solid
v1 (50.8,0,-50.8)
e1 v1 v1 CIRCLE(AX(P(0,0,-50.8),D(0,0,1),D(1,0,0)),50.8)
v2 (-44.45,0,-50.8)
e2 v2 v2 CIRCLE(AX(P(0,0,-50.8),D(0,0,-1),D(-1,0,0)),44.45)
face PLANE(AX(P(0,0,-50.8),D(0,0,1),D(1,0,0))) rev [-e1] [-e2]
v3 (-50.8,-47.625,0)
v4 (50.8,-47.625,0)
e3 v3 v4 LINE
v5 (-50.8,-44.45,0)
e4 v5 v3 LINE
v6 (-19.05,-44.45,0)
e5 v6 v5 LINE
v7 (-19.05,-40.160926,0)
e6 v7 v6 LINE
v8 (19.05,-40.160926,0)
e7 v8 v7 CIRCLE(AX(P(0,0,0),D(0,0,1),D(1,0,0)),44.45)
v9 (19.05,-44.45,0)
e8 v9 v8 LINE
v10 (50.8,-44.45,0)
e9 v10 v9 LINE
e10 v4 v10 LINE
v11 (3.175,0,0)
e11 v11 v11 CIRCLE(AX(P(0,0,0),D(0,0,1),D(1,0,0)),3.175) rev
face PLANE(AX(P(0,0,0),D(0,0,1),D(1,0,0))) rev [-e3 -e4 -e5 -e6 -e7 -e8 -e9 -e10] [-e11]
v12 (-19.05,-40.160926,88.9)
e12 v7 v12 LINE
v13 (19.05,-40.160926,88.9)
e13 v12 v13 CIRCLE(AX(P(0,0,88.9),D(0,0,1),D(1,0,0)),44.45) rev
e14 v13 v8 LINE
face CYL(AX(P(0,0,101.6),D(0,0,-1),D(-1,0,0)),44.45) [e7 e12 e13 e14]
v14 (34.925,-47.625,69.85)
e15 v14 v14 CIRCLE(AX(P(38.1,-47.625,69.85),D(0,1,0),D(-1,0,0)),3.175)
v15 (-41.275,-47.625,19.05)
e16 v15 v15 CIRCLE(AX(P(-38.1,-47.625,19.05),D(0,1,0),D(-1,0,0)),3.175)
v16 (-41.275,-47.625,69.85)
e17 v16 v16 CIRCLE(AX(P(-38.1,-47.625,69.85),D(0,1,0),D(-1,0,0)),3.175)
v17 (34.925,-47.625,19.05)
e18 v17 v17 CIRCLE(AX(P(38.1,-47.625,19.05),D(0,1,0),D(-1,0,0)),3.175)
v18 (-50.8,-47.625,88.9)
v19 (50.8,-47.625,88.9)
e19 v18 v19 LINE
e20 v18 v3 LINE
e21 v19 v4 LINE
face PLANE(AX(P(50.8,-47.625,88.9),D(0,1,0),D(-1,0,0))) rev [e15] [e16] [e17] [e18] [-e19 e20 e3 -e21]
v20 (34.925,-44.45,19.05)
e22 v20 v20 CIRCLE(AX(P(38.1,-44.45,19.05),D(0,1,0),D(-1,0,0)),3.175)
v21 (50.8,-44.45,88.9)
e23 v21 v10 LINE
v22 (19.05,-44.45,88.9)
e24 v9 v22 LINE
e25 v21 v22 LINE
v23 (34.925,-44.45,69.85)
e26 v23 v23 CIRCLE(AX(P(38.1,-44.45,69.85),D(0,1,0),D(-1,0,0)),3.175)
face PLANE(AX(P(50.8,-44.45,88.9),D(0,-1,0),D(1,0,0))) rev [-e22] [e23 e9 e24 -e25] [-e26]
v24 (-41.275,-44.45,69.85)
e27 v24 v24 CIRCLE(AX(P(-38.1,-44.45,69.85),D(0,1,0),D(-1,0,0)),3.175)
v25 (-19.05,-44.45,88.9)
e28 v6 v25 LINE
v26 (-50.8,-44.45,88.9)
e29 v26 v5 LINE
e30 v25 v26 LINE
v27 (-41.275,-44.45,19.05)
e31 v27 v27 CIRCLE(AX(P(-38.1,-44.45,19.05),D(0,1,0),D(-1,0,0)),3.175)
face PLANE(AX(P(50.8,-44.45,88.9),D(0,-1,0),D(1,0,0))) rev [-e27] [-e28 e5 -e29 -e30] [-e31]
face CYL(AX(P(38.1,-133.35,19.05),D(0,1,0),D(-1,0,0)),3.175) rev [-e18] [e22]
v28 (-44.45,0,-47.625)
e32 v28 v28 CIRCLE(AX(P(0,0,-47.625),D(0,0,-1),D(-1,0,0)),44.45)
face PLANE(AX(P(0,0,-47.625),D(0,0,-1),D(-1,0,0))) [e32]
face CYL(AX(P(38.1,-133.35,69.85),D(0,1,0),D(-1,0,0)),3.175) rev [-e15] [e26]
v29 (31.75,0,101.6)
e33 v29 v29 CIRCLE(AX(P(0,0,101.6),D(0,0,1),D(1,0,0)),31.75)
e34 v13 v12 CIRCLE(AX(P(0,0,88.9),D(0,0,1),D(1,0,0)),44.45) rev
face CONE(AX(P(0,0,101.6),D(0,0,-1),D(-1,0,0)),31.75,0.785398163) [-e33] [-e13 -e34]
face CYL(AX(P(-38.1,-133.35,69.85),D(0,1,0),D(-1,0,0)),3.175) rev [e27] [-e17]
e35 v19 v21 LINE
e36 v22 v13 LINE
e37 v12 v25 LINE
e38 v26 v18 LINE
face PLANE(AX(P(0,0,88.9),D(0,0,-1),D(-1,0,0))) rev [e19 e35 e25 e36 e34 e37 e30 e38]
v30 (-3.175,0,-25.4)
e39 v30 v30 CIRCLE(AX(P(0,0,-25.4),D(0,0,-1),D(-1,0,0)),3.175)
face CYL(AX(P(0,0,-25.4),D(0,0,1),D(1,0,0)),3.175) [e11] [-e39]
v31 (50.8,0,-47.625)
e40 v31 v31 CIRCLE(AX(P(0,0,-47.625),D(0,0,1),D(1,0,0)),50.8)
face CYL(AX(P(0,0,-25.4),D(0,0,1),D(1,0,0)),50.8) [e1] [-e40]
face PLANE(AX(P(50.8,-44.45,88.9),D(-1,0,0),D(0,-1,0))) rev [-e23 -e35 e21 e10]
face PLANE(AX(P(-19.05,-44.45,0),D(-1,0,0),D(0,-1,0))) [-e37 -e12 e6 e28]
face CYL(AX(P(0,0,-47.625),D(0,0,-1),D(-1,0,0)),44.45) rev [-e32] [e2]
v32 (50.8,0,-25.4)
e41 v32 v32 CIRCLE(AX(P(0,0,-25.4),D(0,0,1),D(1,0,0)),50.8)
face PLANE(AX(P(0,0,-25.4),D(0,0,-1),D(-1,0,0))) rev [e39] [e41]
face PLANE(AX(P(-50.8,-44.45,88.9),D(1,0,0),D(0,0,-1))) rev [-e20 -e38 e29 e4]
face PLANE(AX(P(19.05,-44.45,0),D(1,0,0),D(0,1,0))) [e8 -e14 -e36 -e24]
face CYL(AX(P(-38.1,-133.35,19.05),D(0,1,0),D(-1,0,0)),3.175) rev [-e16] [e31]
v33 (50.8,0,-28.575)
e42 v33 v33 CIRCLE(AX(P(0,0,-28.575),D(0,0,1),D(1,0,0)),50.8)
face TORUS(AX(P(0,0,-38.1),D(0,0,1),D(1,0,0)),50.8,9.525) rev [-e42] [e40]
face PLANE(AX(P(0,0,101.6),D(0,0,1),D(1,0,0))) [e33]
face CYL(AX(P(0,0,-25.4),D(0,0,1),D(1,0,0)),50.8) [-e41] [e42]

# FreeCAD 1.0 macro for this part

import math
import FreeCAD as App
import Part
import Sketcher
Q = App.Units.Quantity


def edges_at(feature, points):
    """Names of the edges that pass closest to the given points."""
    edges = feature.Shape.Edges
    near = lambda p: min(range(len(edges)), key=lambda i: edges[i].distToShape(Part.Vertex(*p))[0])
    return sorted({f"Edge{near(p) + 1}" for p in points})

doc = App.newDocument("Part")
body = doc.addObject("PartDesign::Body", "Body")

sketch1 = doc.addObject("Sketcher::SketchObject", "Sketch")
body.addObject(sketch1)
sketch1.AttachmentSupport = (doc.XY_Plane, [""])
sketch1.MapMode = "FlatFace"
sketch1.addGeometry(Part.Circle(App.Vector(0, 0, 0), App.Vector(0, 0, 1), 44.45), False)
sketch1.addConstraint(Sketcher.Constraint("Coincident", 0, 3, -1, 1))
sketch1.addConstraint(Sketcher.Constraint("Diameter", 0, Q("3.5 in")))
pad1 = doc.addObject("PartDesign::Pad", "Pad")
body.addObject(pad1)
pad1.Profile = sketch1
pad1.Length = Q("4 in")
doc.recompute()

chamfer = doc.addObject("PartDesign::Chamfer", "Chamfer")
body.addObject(chamfer)
chamfer.Base = (pad1, edges_at(pad1, [(-44.45, 0, 101.6)]))
chamfer.Size = Q("0.5 in")

sketch2 = doc.addObject("Sketcher::SketchObject", "Sketch001")
body.addObject(sketch2)
sketch2.AttachmentSupport = (doc.XY_Plane, [""])
sketch2.MapMode = "FlatFace"
sketch2.addGeometry(Part.Circle(App.Vector(0, 0, 0), App.Vector(0, 0, 1), 3.175), False)
sketch2.addConstraint(Sketcher.Constraint("Coincident", 0, 3, -1, 1))
sketch2.addConstraint(Sketcher.Constraint("Diameter", 0, Q("0.25 in")))
pad2 = doc.addObject("PartDesign::Pad", "Pad001")
body.addObject(pad2)
pad2.Profile = sketch2
pad2.Length = Q("1 in")
pad2.Reversed = True

sketch3 = doc.addObject("Sketcher::SketchObject", "Sketch002")
body.addObject(sketch3)
sketch3.AttachmentSupport = (doc.YZ_Plane, [""])
sketch3.MapMode = "FlatFace"
sketch3.addGeometry(Part.LineSegment(App.Vector(0, -25.4, 0), App.Vector(0, -50.8, 0)), False)
sketch3.addGeometry(Part.LineSegment(App.Vector(0, -50.8, 0), App.Vector(50.8, -50.8, 0)), False)
sketch3.addGeometry(Part.LineSegment(App.Vector(50.8, -50.8, 0), App.Vector(50.8, -47.625, 0)), False)
sketch3.addGeometry(Part.ArcOfCircle(Part.Circle(App.Vector(50.8, -38.1, 0), App.Vector(0, 0, 1), 9.525), math.radians(90), math.radians(270)), False)
sketch3.addGeometry(Part.LineSegment(App.Vector(50.8, -28.575, 0), App.Vector(50.8, -25.4, 0)), False)
sketch3.addGeometry(Part.LineSegment(App.Vector(50.8, -25.4, 0), App.Vector(0, -25.4, 0)), False)
sketch3.addConstraint(Sketcher.Constraint("Coincident", 0, 2, 1, 1))
sketch3.addConstraint(Sketcher.Constraint("Coincident", 1, 2, 2, 1))
sketch3.addConstraint(Sketcher.Constraint("Coincident", 2, 2, 3, 2))
sketch3.addConstraint(Sketcher.Constraint("Coincident", 3, 1, 4, 1))
sketch3.addConstraint(Sketcher.Constraint("Coincident", 4, 2, 5, 1))
sketch3.addConstraint(Sketcher.Constraint("Coincident", 5, 2, 0, 1))
sketch3.addConstraint(Sketcher.Constraint("Vertical", 0))
sketch3.addConstraint(Sketcher.Constraint("Horizontal", 1))
sketch3.addConstraint(Sketcher.Constraint("Vertical", 2))
sketch3.addConstraint(Sketcher.Constraint("Vertical", 4))
sketch3.addConstraint(Sketcher.Constraint("Horizontal", 5))
sketch3.addConstraint(Sketcher.Constraint("PointOnObject", 0, 2, -2))
sketch3.addConstraint(Sketcher.Constraint("Vertical", 3, 3, 1, 2))
sketch3.addConstraint(Sketcher.Constraint("Vertical", 2, 2, 3, 1))
sketch3.addConstraint(Sketcher.Constraint("Equal", 2, 4))
sketch3.addConstraint(Sketcher.Constraint("DistanceX", 1, 1, 1, 2, Q("2 in")))
sketch3.addConstraint(Sketcher.Constraint("DistanceY", 0, 2, 0, 1, Q("1 in")))
sketch3.addConstraint(Sketcher.Constraint("DistanceY", 0, 2, -1, 1, Q("2 in")))
sketch3.addConstraint(Sketcher.Constraint("Radius", 3, Q("0.375 in")))
revolution = doc.addObject("PartDesign::Revolution", "Revolution")
body.addObject(revolution)
revolution.Profile = sketch3
revolution.ReferenceAxis = (sketch3, ["V_Axis"])
revolution.Angle = 360

sketch4 = doc.addObject("Sketcher::SketchObject", "Sketch003")
body.addObject(sketch4)
sketch4.AttachmentSupport = (doc.XY_Plane, [""])
sketch4.MapMode = "FlatFace"
sketch4.AttachmentOffset = App.Placement(App.Vector(0, 0, -2 * 25.4), App.Rotation())
sketch4.addGeometry(Part.Circle(App.Vector(0, 0, 0), App.Vector(0, 0, 1), 44.45), False)
sketch4.addConstraint(Sketcher.Constraint("Coincident", 0, 3, -1, 1))
sketch4.addConstraint(Sketcher.Constraint("Diameter", 0, Q("3.5 in")))
pocket1 = doc.addObject("PartDesign::Pocket", "Pocket")
body.addObject(pocket1)
pocket1.Profile = sketch4
pocket1.Length = Q("0.125 in")
pocket1.Reversed = True
body2 = doc.addObject("PartDesign::Body", "Body001")

sketch5 = doc.addObject("Sketcher::SketchObject", "Sketch004")
body2.addObject(sketch5)
sketch5.AttachmentSupport = (doc.getObject("XY_Plane001"), [""])
sketch5.MapMode = "FlatFace"
sketch5.addGeometry(Part.LineSegment(App.Vector(-50.8, -44.45, 0), App.Vector(-50.8, -47.625, 0)), False)
sketch5.addGeometry(Part.LineSegment(App.Vector(-50.8, -47.625, 0), App.Vector(50.8, -47.625, 0)), False)
sketch5.addGeometry(Part.LineSegment(App.Vector(50.8, -47.625, 0), App.Vector(50.8, -44.45, 0)), False)
sketch5.addGeometry(Part.LineSegment(App.Vector(50.8, -44.45, 0), App.Vector(-50.8, -44.45, 0)), False)
sketch5.addConstraint(Sketcher.Constraint("Coincident", 0, 2, 1, 1))
sketch5.addConstraint(Sketcher.Constraint("Coincident", 1, 2, 2, 1))
sketch5.addConstraint(Sketcher.Constraint("Coincident", 2, 2, 3, 1))
sketch5.addConstraint(Sketcher.Constraint("Coincident", 3, 2, 0, 1))
sketch5.addConstraint(Sketcher.Constraint("Vertical", 0))
sketch5.addConstraint(Sketcher.Constraint("Horizontal", 1))
sketch5.addConstraint(Sketcher.Constraint("Vertical", 2))
sketch5.addConstraint(Sketcher.Constraint("Horizontal", 3))
sketch5.addConstraint(Sketcher.Constraint("DistanceX", 1, 1, 1, 2, Q("4 in")))
sketch5.addConstraint(Sketcher.Constraint("DistanceX", 0, 2, -1, 1, Q("2 in")))
sketch5.addConstraint(Sketcher.Constraint("DistanceY", 0, 2, 0, 1, Q("0.125 in")))
sketch5.addConstraint(Sketcher.Constraint("DistanceY", 2, 2, -1, 1, Q("1.75 in")))
pad3 = doc.addObject("PartDesign::Pad", "Pad002")
body2.addObject(pad3)
pad3.Profile = sketch5
pad3.Length = Q("3.5 in")
body.AllowCompound = True
doc.recompute()

boolean = doc.addObject("PartDesign::Boolean", "Boolean")
body.addObject(boolean)
boolean.Type = "Fuse"
boolean.addObjects([body2])

sketch6 = doc.addObject("Sketcher::SketchObject", "Sketch005")
body.addObject(sketch6)
sketch6.AttachmentSupport = (doc.XY_Plane, [""])
sketch6.MapMode = "FlatFace"
sketch6.AttachmentOffset = App.Placement(App.Vector(0, 0, 3.5 * 25.4), App.Rotation())
sketch6.addGeometry(Part.LineSegment(App.Vector(-19.05, -37.439907, 0), App.Vector(-19.05, -44.45, 0)), False)
sketch6.addGeometry(Part.LineSegment(App.Vector(-19.05, -44.45, 0), App.Vector(19.05, -44.45, 0)), False)
sketch6.addGeometry(Part.LineSegment(App.Vector(19.05, -44.45, 0), App.Vector(19.05, -37.439907, 0)), False)
sketch6.addGeometry(Part.LineSegment(App.Vector(19.05, -37.439907, 0), App.Vector(-19.05, -37.439907, 0)), False)
sketch6.addConstraint(Sketcher.Constraint("Coincident", 0, 2, 1, 1))
sketch6.addConstraint(Sketcher.Constraint("Coincident", 1, 2, 2, 1))
sketch6.addConstraint(Sketcher.Constraint("Coincident", 2, 2, 3, 1))
sketch6.addConstraint(Sketcher.Constraint("Coincident", 3, 2, 0, 1))
sketch6.addConstraint(Sketcher.Constraint("Vertical", 0))
sketch6.addConstraint(Sketcher.Constraint("Horizontal", 1))
sketch6.addConstraint(Sketcher.Constraint("Vertical", 2))
sketch6.addConstraint(Sketcher.Constraint("Horizontal", 3))
sketch6.addConstraint(Sketcher.Constraint("DistanceX", 1, 1, 1, 2, Q("1.5 in")))
sketch6.addConstraint(Sketcher.Constraint("DistanceX", 0, 2, -1, 1, Q("0.75 in")))
sketch6.addConstraint(Sketcher.Constraint("DistanceY", 0, 2, -1, 1, Q("1.75 in")))
sketch6.addConstraint(Sketcher.Constraint("DistanceY", 0, 2, 0, 1, 7.010093))
pad4 = doc.addObject("PartDesign::Pad", "Pad003")
body.addObject(pad4)
pad4.Profile = sketch6
pad4.Length = Q("3.5 in")
pad4.Reversed = True

sketch7 = doc.addObject("Sketcher::SketchObject", "Sketch006")
body.addObject(sketch7)
sketch7.AttachmentSupport = (doc.XZ_Plane, [""])
sketch7.MapMode = "FlatFace"
sketch7.AttachmentOffset = App.Placement(App.Vector(0, 0, 1.75 * 25.4), App.Rotation())
sketch7.addGeometry(Part.Circle(App.Vector(38.1, 19.05, 0), App.Vector(0, 0, 1), 3.175), False)
sketch7.addGeometry(Part.Circle(App.Vector(38.1, 69.85, 0), App.Vector(0, 0, 1), 3.175), False)
sketch7.addConstraint(Sketcher.Constraint("Equal", 0, 1))
sketch7.addConstraint(Sketcher.Constraint("Vertical", 0, 3, 1, 3))
sketch7.addConstraint(Sketcher.Constraint("Diameter", 0, Q("0.25 in")))
sketch7.addConstraint(Sketcher.Constraint("DistanceY", 0, 3, 1, 3, Q("2 in")))
sketch7.addConstraint(Sketcher.Constraint("DistanceX", -1, 1, 0, 3, Q("1.5 in")))
sketch7.addConstraint(Sketcher.Constraint("DistanceY", -1, 1, 0, 3, Q("0.75 in")))
pocket2 = doc.addObject("PartDesign::Pocket", "Pocket001")
body.addObject(pocket2)
pocket2.Profile = sketch7
pocket2.Length = Q("3.5 in")
pocket2.Reversed = True

sketch8 = doc.addObject("Sketcher::SketchObject", "Sketch007")
body.addObject(sketch8)
sketch8.AttachmentSupport = (doc.XZ_Plane, [""])
sketch8.MapMode = "FlatFace"
sketch8.AttachmentOffset = App.Placement(App.Vector(0, 0, 1.75 * 25.4), App.Rotation())
sketch8.addGeometry(Part.Circle(App.Vector(-38.1, 19.05, 0), App.Vector(0, 0, 1), 3.175), False)
sketch8.addGeometry(Part.Circle(App.Vector(-38.1, 69.85, 0), App.Vector(0, 0, 1), 3.175), False)
sketch8.addConstraint(Sketcher.Constraint("Equal", 0, 1))
sketch8.addConstraint(Sketcher.Constraint("Vertical", 0, 3, 1, 3))
sketch8.addConstraint(Sketcher.Constraint("Diameter", 0, Q("0.25 in")))
sketch8.addConstraint(Sketcher.Constraint("DistanceY", 0, 3, 1, 3, Q("2 in")))
sketch8.addConstraint(Sketcher.Constraint("DistanceX", 0, 3, -1, 1, Q("1.5 in")))
sketch8.addConstraint(Sketcher.Constraint("DistanceY", -1, 1, 0, 3, Q("0.75 in")))
pocket3 = doc.addObject("PartDesign::Pocket", "Pocket002")
body.addObject(pocket3)
pocket3.Profile = sketch8
pocket3.Length = Q("3.5 in")
pocket3.Reversed = True

doc.recompute()
